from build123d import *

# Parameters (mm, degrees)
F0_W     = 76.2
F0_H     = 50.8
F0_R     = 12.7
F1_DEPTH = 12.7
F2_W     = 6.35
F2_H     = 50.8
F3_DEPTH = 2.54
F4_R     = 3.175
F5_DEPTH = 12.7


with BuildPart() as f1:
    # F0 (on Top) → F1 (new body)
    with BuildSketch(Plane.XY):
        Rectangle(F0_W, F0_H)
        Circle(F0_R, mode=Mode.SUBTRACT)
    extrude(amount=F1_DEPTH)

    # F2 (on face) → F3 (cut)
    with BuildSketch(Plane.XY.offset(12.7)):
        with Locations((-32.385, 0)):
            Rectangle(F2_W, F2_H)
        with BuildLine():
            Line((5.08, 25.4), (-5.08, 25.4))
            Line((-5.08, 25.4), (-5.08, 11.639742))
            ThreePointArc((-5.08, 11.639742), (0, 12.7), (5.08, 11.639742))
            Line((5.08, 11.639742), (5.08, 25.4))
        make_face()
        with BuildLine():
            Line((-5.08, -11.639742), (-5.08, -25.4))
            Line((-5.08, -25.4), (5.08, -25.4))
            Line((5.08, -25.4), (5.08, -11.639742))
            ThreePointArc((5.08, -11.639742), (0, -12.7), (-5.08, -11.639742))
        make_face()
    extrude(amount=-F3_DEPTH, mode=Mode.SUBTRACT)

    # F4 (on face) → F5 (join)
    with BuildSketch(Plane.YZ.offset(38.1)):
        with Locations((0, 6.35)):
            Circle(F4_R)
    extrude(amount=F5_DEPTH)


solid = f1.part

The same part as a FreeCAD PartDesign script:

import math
import FreeCAD as App
import Part
import Sketcher
from FreeCAD import Vector
Q = App.Units.Quantity

doc = App.newDocument("Part")
body = doc.addObject("PartDesign::Body", "Body")

# Sketch on XY plane
sketch1 = body.newObject("Sketcher::SketchObject", "Sketch")
sketch1.AttachmentSupport = (doc.getObject("XY_Plane"), [""])
sketch1.MapMode = "FlatFace"
sketch1.addGeometry([
    Part.LineSegment(Vector(-38.1, 25.4, 0), Vector(-38.1, -25.4, 0)),  # 0
    Part.LineSegment(Vector(-38.1, -25.4, 0), Vector(38.1, -25.4, 0)),  # 1
    Part.LineSegment(Vector(38.1, -25.4, 0), Vector(38.1, 25.4, 0)),  # 2
    Part.LineSegment(Vector(38.1, 25.4, 0), Vector(-38.1, 25.4, 0)),  # 3
    Part.Circle(Vector(0, 0, 0), Vector(0, 0, 1), 12.7),  # 4
], False)
sketch1.addConstraint([
    Sketcher.Constraint("Coincident", 0, 2, 1, 1),
    Sketcher.Constraint("Coincident", 1, 2, 2, 1),
    Sketcher.Constraint("Coincident", 2, 2, 3, 1),
    Sketcher.Constraint("Coincident", 3, 2, 0, 1),
    Sketcher.Constraint("Vertical", 0),
    Sketcher.Constraint("Horizontal", 1),
    Sketcher.Constraint("Vertical", 2),
    Sketcher.Constraint("Horizontal", 3),
    Sketcher.Constraint("Coincident", 4, 3, -1, 1),
    Sketcher.Constraint("Symmetric", 0, 2, 2, 2, -1, 1),
    Sketcher.Constraint("Diameter", 4, Q("1 in")),
    Sketcher.Constraint("DistanceX", 1, 1, 1, 2, Q("3 in")),
    Sketcher.Constraint("DistanceY", 0, 2, 0, 1, Q("2 in")),
])
pad1 = body.newObject("PartDesign::Pad", "Pad")
pad1.Profile = sketch1
pad1.Length = Q("0.5 in")

# Sketch on XY plane
sketch2 = body.newObject("Sketcher::SketchObject", "Sketch001")
sketch2.AttachmentSupport = (doc.getObject("XY_Plane"), [""])
sketch2.MapMode = "FlatFace"
sketch2.AttachmentOffset = App.Placement(Vector(0, 0, 0.5 * 25.4), App.Rotation())
sketch2.addGeometry([
    Part.LineSegment(Vector(-35.56, 25.4, 0), Vector(-35.56, -25.4, 0)),  # 0
    Part.LineSegment(Vector(-35.56, -25.4, 0), Vector(-29.21, -25.4, 0)),  # 1
    Part.LineSegment(Vector(-29.21, -25.4, 0), Vector(-29.21, 25.4, 0)),  # 2
    Part.LineSegment(Vector(-29.21, 25.4, 0), Vector(-35.56, 25.4, 0)),  # 3
    Part.LineSegment(Vector(5.08, 25.4, 0), Vector(-5.08, 25.4, 0)),  # 4
    Part.LineSegment(Vector(-5.08, 25.4, 0), Vector(-5.08, 11.639742, 0)),  # 5
    Part.ArcOfCircle(Part.Circle(Vector(0, 0.000003, 0), Vector(0, 0, 1), 12.699997), math.radians(66.421816), math.radians(113.578184)),  # 6
    Part.LineSegment(Vector(5.08, 11.639742, 0), Vector(5.08, 25.4, 0)),  # 7
    Part.LineSegment(Vector(-5.08, -11.639742, 0), Vector(-5.08, -25.4, 0)),  # 8
    Part.LineSegment(Vector(-5.08, -25.4, 0), Vector(5.08, -25.4, 0)),  # 9
    Part.LineSegment(Vector(5.08, -25.4, 0), Vector(5.08, -11.639742, 0)),  # 10
    Part.ArcOfCircle(Part.Circle(Vector(0, -0.000003, 0), Vector(0, 0, 1), 12.699997), math.radians(-113.578184), math.radians(-66.421816)),  # 11
], False)
sketch2.addConstraint([
    Sketcher.Constraint("Coincident", 0, 2, 1, 1),
    Sketcher.Constraint("Coincident", 1, 2, 2, 1),
    Sketcher.Constraint("Coincident", 2, 2, 3, 1),
    Sketcher.Constraint("Coincident", 3, 2, 0, 1),
    Sketcher.Constraint("Coincident", 4, 2, 5, 1),
    Sketcher.Constraint("Coincident", 5, 2, 6, 2),
    Sketcher.Constraint("Coincident", 6, 1, 7, 1),
    Sketcher.Constraint("Coincident", 7, 2, 4, 1),
    Sketcher.Constraint("Coincident", 8, 2, 9, 1),
    Sketcher.Constraint("Coincident", 9, 2, 10, 1),
    Sketcher.Constraint("Coincident", 10, 2, 11, 2),
    Sketcher.Constraint("Coincident", 11, 1, 8, 1),
    Sketcher.Constraint("Vertical", 0),
    Sketcher.Constraint("Horizontal", 1),
    Sketcher.Constraint("Vertical", 2),
    Sketcher.Constraint("Horizontal", 3),
    Sketcher.Constraint("Horizontal", 4),
    Sketcher.Constraint("Vertical", 5),
    Sketcher.Constraint("Vertical", 7),
    Sketcher.Constraint("Vertical", 8),
    Sketcher.Constraint("Horizontal", 9),
    Sketcher.Constraint("Vertical", 10),
    Sketcher.Constraint("Coincident", 6, 3, -1, 1),
    Sketcher.Constraint("Coincident", 11, 3, -1, 1),
    Sketcher.Constraint("Equal", 6, 11),
    Sketcher.Constraint("Symmetric", 7, 2, 8, 2, -1, 1),
    Sketcher.Constraint("Horizontal", 3, 2, 4, 2),
    Sketcher.Constraint("Horizontal", 5, 2, 6, 1),
    Sketcher.Constraint("Horizontal", 1, 2, 8, 2),
    Sketcher.Constraint("Horizontal", 10, 2, 11, 1),
    Sketcher.Constraint("Radius", 6, Q("0.4999999 in")),
    Sketcher.Constraint("DistanceY", 0, 2, 0, 1, Q("2 in")),
    Sketcher.Constraint("DistanceX", 4, 2, 4, 1, Q("0.4 in")),
    Sketcher.Constraint("DistanceX", 1, 1, 1, 2, Q("0.25 in")),
    Sketcher.Constraint("DistanceX", 0, 2, -1, 1, Q("1.4 in")),
])
pocket1 = body.newObject("PartDesign::Pocket", "Pocket")
pocket1.Profile = sketch2
pocket1.Length = Q("0.1 in")

# Sketch on YZ plane
sketch3 = body.newObject("Sketcher::SketchObject", "Sketch002")
sketch3.AttachmentSupport = (doc.getObject("YZ_Plane"), [""])
sketch3.MapMode = "FlatFace"
sketch3.AttachmentOffset = App.Placement(Vector(0, 0, 1.5 * 25.4), App.Rotation())
sketch3.addGeometry(Part.Circle(Vector(0, 6.35, 0), Vector(0, 0, 1), 3.175), False)
sketch3.addConstraint([
    Sketcher.Constraint("PointOnObject", 0, 3, -2),
    Sketcher.Constraint("Diameter", 0, Q("0.25 in")),
    Sketcher.Constraint("DistanceY", -1, 1, 0, 3, Q("0.25 in")),
])
pad2 = body.newObject("PartDesign::Pad", "Pad001")
pad2.Profile = sketch3
pad2.Length = Q("0.5 in")

doc.recompute()
